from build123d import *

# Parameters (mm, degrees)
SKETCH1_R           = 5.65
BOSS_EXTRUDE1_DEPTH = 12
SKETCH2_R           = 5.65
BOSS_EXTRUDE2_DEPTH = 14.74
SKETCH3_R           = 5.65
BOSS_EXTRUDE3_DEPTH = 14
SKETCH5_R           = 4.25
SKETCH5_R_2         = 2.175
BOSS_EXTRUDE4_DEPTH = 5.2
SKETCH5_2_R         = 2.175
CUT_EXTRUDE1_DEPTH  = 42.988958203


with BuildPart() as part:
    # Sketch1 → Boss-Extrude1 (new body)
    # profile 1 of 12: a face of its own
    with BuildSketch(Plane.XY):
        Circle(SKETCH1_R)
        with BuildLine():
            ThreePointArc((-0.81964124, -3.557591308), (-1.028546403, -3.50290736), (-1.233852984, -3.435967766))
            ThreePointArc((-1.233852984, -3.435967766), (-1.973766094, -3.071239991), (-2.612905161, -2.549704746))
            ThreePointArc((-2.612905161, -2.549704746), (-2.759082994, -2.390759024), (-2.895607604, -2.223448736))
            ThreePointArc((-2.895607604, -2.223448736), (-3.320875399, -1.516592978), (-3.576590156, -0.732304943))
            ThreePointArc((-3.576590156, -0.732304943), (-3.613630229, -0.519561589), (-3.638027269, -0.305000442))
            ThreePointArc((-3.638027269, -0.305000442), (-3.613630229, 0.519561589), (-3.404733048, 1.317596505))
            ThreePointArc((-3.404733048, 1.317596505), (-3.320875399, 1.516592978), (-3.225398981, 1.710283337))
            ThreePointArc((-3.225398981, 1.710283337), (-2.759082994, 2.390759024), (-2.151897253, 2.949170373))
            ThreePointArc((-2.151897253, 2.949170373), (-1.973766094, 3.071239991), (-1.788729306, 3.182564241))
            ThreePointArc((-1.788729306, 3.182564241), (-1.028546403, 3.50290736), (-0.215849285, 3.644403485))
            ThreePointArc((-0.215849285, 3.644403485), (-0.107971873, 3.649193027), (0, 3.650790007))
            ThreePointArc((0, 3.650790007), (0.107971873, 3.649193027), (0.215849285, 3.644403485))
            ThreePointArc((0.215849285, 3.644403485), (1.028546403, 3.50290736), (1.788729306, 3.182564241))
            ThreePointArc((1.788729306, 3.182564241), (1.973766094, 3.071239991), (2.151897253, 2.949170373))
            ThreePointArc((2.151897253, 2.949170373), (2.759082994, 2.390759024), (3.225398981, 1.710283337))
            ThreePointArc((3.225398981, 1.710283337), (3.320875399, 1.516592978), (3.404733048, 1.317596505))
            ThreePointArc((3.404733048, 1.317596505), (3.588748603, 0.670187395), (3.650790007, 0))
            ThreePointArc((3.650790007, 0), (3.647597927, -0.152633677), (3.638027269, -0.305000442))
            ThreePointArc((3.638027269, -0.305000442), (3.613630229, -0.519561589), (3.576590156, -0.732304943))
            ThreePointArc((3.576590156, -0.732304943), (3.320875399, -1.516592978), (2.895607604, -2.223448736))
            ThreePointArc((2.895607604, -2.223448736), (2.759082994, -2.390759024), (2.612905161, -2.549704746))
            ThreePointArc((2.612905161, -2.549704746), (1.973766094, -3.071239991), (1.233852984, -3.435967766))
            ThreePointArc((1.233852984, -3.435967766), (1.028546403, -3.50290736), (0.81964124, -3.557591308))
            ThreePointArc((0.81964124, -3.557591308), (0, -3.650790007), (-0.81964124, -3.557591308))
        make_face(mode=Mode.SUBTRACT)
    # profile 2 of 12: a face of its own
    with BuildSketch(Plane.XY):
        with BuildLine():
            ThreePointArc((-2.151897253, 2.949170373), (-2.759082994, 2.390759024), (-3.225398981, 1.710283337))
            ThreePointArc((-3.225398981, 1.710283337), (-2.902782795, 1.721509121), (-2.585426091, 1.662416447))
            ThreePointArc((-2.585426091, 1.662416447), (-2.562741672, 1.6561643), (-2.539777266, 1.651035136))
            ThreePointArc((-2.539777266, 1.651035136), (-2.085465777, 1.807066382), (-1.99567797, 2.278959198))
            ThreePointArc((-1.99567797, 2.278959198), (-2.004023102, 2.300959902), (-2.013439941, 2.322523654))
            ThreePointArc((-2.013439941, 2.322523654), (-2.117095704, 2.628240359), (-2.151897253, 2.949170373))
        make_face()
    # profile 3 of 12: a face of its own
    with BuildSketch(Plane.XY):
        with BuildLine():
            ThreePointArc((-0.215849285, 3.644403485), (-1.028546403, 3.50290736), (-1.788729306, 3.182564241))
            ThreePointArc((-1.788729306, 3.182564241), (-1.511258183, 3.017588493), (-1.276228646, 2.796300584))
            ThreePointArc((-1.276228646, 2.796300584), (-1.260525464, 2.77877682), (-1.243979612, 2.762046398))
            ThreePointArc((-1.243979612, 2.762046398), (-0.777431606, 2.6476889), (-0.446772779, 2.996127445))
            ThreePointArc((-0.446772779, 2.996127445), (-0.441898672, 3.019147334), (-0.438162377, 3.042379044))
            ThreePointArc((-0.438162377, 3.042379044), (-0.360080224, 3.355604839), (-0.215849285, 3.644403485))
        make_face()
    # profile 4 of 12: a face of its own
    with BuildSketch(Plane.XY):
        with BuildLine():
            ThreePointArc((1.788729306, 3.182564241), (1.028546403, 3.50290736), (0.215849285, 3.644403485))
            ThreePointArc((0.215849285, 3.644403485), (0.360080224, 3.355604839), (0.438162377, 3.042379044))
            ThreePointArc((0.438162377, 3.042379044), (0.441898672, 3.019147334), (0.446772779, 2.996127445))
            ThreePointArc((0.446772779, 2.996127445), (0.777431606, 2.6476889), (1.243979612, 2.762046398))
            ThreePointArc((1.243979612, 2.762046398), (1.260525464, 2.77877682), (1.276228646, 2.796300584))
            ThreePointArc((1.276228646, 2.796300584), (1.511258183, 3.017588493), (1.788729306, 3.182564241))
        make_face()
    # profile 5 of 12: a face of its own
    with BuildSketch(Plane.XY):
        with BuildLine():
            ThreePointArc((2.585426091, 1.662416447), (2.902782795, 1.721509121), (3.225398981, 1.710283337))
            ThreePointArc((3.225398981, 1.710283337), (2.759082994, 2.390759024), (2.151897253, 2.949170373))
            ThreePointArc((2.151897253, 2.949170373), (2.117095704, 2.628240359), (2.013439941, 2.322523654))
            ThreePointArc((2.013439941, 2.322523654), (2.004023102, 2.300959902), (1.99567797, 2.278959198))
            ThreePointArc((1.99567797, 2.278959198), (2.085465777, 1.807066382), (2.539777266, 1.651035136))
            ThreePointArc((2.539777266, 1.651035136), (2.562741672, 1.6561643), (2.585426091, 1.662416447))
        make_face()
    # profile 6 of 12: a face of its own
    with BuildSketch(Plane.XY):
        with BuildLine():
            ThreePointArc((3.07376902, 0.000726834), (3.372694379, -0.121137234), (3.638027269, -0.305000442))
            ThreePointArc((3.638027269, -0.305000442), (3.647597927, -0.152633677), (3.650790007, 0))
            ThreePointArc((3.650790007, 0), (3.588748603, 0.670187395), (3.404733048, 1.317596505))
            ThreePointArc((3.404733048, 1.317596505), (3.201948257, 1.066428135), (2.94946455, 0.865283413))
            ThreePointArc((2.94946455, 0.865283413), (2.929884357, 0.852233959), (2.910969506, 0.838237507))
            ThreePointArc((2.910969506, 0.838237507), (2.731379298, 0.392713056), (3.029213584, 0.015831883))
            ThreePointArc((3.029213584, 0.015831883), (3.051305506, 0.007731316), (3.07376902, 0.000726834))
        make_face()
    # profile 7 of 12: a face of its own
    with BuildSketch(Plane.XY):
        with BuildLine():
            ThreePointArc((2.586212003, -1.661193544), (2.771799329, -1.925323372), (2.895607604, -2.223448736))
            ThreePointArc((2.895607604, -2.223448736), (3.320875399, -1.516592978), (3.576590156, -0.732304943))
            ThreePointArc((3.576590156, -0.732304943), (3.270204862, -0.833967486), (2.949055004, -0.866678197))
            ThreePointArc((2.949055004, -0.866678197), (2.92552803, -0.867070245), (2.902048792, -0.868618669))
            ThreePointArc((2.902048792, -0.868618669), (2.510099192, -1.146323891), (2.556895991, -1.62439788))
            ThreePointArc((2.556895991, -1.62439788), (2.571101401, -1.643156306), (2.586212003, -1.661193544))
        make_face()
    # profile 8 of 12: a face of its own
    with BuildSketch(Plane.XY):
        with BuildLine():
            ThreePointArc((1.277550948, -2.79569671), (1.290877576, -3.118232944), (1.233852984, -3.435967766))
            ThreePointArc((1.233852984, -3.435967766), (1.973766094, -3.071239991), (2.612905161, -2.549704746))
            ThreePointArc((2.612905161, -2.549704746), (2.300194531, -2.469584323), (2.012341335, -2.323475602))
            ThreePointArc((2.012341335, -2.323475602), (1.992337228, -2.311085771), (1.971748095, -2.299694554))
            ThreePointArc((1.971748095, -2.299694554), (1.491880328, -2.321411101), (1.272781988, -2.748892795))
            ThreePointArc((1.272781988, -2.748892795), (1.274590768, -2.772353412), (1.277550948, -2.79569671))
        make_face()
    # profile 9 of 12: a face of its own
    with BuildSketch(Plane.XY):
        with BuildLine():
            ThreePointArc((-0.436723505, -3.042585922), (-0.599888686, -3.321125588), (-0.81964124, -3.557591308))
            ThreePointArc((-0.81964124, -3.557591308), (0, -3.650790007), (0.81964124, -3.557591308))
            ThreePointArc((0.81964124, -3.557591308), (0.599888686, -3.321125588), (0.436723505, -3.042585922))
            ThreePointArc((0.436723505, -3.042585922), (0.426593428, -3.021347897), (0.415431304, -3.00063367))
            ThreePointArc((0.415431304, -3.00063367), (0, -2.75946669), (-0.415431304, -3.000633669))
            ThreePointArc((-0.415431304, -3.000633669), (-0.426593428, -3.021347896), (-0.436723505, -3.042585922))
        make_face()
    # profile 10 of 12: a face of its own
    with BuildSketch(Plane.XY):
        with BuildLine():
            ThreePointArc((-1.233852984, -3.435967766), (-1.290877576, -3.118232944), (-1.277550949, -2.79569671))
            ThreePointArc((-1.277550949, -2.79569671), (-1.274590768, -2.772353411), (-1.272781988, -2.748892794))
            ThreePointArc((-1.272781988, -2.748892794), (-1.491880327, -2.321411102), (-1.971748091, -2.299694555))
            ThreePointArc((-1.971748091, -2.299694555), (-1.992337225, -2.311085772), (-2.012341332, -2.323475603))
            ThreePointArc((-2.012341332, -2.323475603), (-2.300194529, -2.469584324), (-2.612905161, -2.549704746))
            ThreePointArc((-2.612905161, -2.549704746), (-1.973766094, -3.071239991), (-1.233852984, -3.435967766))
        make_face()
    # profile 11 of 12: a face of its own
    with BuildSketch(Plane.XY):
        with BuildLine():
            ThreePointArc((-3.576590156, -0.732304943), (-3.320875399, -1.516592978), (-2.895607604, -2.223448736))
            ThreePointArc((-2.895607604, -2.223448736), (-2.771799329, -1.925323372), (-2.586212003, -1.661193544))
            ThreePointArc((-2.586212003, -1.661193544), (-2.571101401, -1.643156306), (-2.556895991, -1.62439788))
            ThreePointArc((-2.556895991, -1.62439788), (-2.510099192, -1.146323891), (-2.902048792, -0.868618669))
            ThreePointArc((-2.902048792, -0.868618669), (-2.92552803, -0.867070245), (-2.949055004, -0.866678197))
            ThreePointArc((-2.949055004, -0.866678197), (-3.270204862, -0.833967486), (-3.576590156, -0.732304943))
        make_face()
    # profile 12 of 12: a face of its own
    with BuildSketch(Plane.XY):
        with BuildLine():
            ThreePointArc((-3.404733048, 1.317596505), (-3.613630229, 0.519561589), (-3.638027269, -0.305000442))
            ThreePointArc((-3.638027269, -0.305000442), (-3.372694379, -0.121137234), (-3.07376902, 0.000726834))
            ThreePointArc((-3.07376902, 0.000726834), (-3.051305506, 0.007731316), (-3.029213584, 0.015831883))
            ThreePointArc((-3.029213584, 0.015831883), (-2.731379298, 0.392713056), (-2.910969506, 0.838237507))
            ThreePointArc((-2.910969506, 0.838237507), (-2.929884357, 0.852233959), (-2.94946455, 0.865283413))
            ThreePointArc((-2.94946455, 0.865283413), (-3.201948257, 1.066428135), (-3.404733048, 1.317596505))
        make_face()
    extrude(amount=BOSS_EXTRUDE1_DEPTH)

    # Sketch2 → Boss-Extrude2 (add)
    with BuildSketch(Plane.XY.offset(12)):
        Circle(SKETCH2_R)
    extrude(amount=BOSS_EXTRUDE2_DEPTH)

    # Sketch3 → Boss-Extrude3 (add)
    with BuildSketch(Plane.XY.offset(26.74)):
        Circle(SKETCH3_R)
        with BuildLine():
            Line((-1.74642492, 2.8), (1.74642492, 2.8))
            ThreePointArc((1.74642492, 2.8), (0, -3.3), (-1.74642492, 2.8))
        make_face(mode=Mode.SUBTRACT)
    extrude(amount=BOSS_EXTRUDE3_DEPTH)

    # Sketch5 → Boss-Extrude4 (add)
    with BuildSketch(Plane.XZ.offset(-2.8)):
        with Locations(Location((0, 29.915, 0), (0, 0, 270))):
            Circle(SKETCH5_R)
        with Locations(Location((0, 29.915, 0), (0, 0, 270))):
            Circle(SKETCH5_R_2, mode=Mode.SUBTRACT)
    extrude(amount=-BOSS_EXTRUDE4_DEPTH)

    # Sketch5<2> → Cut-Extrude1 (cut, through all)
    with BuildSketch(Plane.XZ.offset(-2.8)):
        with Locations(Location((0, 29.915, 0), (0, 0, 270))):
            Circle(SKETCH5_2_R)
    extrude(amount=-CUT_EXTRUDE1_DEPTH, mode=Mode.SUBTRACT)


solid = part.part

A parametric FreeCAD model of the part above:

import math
import FreeCAD as App
import Part
import Sketcher
from FreeCAD import Vector

doc = App.newDocument("Part")
body = doc.addObject("PartDesign::Body", "Body")

sketch1 = body.newObject("Sketcher::SketchObject", "Sketch")
sketch1.AttachmentSupport = (doc.getObject("XY_Plane"), [""])
sketch1.MapMode = "FlatFace"
sketch1.addGeometry(Part.Circle(Vector(0, 0, 0), Vector(0, 0, 1), 5.65), False)
sketch1.addGeometry(Part.ArcOfCircle(Part.Circle(Vector(0, 0, 0), Vector(0, 0, 1), 3.651), math.radians(-77.03), math.radians(-70.25)), False)
sketch1.addGeometry(Part.ArcOfCircle(Part.Circle(Vector(1.786, -2.439, 0), Vector(0, 0, 1), 1.478), math.radians(-156), math.radians(-131)), False)
sketch1.addGeometry(Part.ArcOfCircle(Part.Circle(Vector(0, -3.238, 0), Vector(0, 0, 1), 0.478), math.radians(24.09), math.radians(29.73)), False)
sketch1.addGeometry(Part.ArcOfCircle(Part.Circle(Vector(0, -3.238, 0), Vector(0, 0, 1), 0.478), math.radians(30), math.radians(150)), False)
sketch1.addGeometry(Part.ArcOfCircle(Part.Circle(Vector(0, -3.238, 0), Vector(0, 0, 1), 0.478), math.radians(150.27), math.radians(155.91)), False)
sketch1.addGeometry(Part.ArcOfCircle(Part.Circle(Vector(-1.786, -2.439, 0), Vector(0, 0, 1), 1.478), math.radians(-49), math.radians(-24)), False)
sketch1.addGeometry(Part.ArcOfCircle(Part.Circle(Vector(0, 0, 0), Vector(0, 0, 1), 3.651), math.radians(-109.75), math.radians(-102.97)), False)
sketch1.addGeometry(Part.ArcOfCircle(Part.Circle(Vector(0.183, -3.018, 0), Vector(0, 0, 1), 1.478), math.radians(171), math.radians(196)), False)
sketch1.addGeometry(Part.ArcOfCircle(Part.Circle(Vector(-1.751, -2.724, 0), Vector(0, 0, 1), 0.478), math.radians(-8.64), math.radians(-3)), False)
sketch1.addGeometry(Part.ArcOfCircle(Part.Circle(Vector(-1.751, -2.724, 0), Vector(0, 0, 1), 0.478), math.radians(-3), math.radians(118)), False)
sketch1.addGeometry(Part.ArcOfCircle(Part.Circle(Vector(-1.751, -2.724, 0), Vector(0, 0, 1), 0.478), math.radians(117.54), math.radians(123.18)), False)
sketch1.addGeometry(Part.ArcOfCircle(Part.Circle(Vector(-2.821, -1.087, 0), Vector(0, 0, 1), 1.478), math.radians(-82), math.radians(-57)), False)
sketch1.addGeometry(Part.ArcOfCircle(Part.Circle(Vector(0, 0, 0), Vector(0, 0, 1), 3.651), math.radians(-142.48), math.radians(-135.7)), False)
sketch1.addGeometry(Part.ArcOfCircle(Part.Circle(Vector(-1.477, -2.638, 0), Vector(0, 0, 1), 1.478), math.radians(139), math.radians(164)), False)
sketch1.addGeometry(Part.ArcOfCircle(Part.Circle(Vector(-2.945, -1.345, 0), Vector(0, 0, 1), 0.478), math.radians(-41.36), math.radians(-35.73)), False)
sketch1.addGeometry(Part.ArcOfCircle(Part.Circle(Vector(-2.945, -1.345, 0), Vector(0, 0, 1), 0.478), math.radians(-36), math.radians(85)), False)
sketch1.addGeometry(Part.ArcOfCircle(Part.Circle(Vector(-2.945, -1.345, 0), Vector(0, 0, 1), 0.478), math.radians(84.82), math.radians(90.45)), False)
sketch1.addGeometry(Part.ArcOfCircle(Part.Circle(Vector(-2.961, 0.611, 0), Vector(0, 0, 1), 1.478), math.radians(-115), math.radians(-90)), False)
sketch1.addGeometry(Part.ArcOfCircle(Part.Circle(Vector(0, 0, 0), Vector(0, 0, 1), 3.651), math.radians(-175.21), math.radians(-168.43)), False)
sketch1.addGeometry(Part.ArcOfCircle(Part.Circle(Vector(-2.669, -1.42, 0), Vector(0, 0, 1), 1.478), math.radians(106), math.radians(131)), False)
sketch1.addGeometry(Part.ArcOfCircle(Part.Circle(Vector(-3.205, 0.461, 0), Vector(0, 0, 1), 0.478), math.radians(-74.09), math.radians(-68.45)), False)
sketch1.addGeometry(Part.ArcOfCircle(Part.Circle(Vector(-3.205, 0.461, 0), Vector(0, 0, 1), 0.478), math.radians(-68), math.radians(52)), False)
sketch1.addGeometry(Part.ArcOfCircle(Part.Circle(Vector(-3.205, 0.461, 0), Vector(0, 0, 1), 0.478), math.radians(52.09), math.radians(57.73)), False)
sketch1.addGeometry(Part.ArcOfCircle(Part.Circle(Vector(-2.16, 2.115, 0), Vector(0, 0, 1), 1.478), math.radians(-147), math.radians(-122)), False)
sketch1.addGeometry(Part.ArcOfCircle(Part.Circle(Vector(0, 0, 0), Vector(0, 0, 1), 3.651), math.radians(152.07), math.radians(158.84)), False)
sketch1.addGeometry(Part.ArcOfCircle(Part.Circle(Vector(-3.013, 0.248, 0), Vector(0, 0, 1), 1.478), math.radians(73), math.radians(98)), False)
sketch1.addGeometry(Part.ArcOfCircle(Part.Circle(Vector(-2.447, 2.12, 0), Vector(0, 0, 1), 0.478), math.radians(-106.82), math.radians(-101.18)), False)
sketch1.addGeometry(Part.ArcOfCircle(Part.Circle(Vector(-2.447, 2.12, 0), Vector(0, 0, 1), 0.478), math.radians(-101), math.radians(19)), False)
sketch1.addGeometry(Part.ArcOfCircle(Part.Circle(Vector(-2.447, 2.12, 0), Vector(0, 0, 1), 0.478), math.radians(19.36), math.radians(25)), False)
sketch1.addGeometry(Part.ArcOfCircle(Part.Circle(Vector(-0.674, 2.947, 0), Vector(0, 0, 1), 1.478), math.radians(180), math.radians(205)), False)
sketch1.addGeometry(Part.ArcOfCircle(Part.Circle(Vector(0, 0, 0), Vector(0, 0, 1), 3.651), math.radians(119.34), math.radians(126.12)), False)
sketch1.addGeometry(Part.ArcOfCircle(Part.Circle(Vector(-2.401, 1.837, 0), Vector(0, 0, 1), 1.478), math.radians(40), math.radians(66)), False)
sketch1.addGeometry(Part.ArcOfCircle(Part.Circle(Vector(-0.912, 3.107, 0), Vector(0, 0, 1), 0.478), math.radians(-139.55), math.radians(-133.91)), False)
sketch1.addGeometry(Part.ArcOfCircle(Part.Circle(Vector(-0.912, 3.107, 0), Vector(0, 0, 1), 0.478), math.radians(-134), math.radians(-13)), False)
sketch1.addGeometry(Part.ArcOfCircle(Part.Circle(Vector(-0.912, 3.107, 0), Vector(0, 0, 1), 0.478), math.radians(-13.36), math.radians(-7.73)), False)
sketch1.addGeometry(Part.ArcOfCircle(Part.Circle(Vector(1.026, 2.844, 0), Vector(0, 0, 1), 1.478), math.radians(147), math.radians(172)), False)
sketch1.addGeometry(Part.ArcOfCircle(Part.Circle(Vector(0, 0, 0), Vector(0, 0, 1), 3.651), math.radians(90), math.radians(93.39)), False)
sketch1.addGeometry(Part.ArcOfCircle(Part.Circle(Vector(0, 0, 0), Vector(0, 0, 1), 3.651), math.radians(86.61), math.radians(90)), False)
sketch1.addGeometry(Part.ArcOfCircle(Part.Circle(Vector(-1.026, 2.844, 0), Vector(0, 0, 1), 1.478), math.radians(8), math.radians(33)), False)
sketch1.addGeometry(Part.ArcOfCircle(Part.Circle(Vector(0.912, 3.107, 0), Vector(0, 0, 1), 0.478), math.radians(-172.27), math.radians(-166.64)), False)
sketch1.addGeometry(Part.ArcOfCircle(Part.Circle(Vector(0.912, 3.107, 0), Vector(0, 0, 1), 0.478), math.radians(-167), math.radians(-46)), False)
sketch1.addGeometry(Part.ArcOfCircle(Part.Circle(Vector(0.912, 3.107, 0), Vector(0, 0, 1), 0.478), math.radians(-46.09), math.radians(-40.45)), False)
sketch1.addGeometry(Part.ArcOfCircle(Part.Circle(Vector(2.401, 1.837, 0), Vector(0, 0, 1), 1.478), math.radians(114), math.radians(140)), False)
sketch1.addGeometry(Part.ArcOfCircle(Part.Circle(Vector(0, 0, 0), Vector(0, 0, 1), 3.651), math.radians(53.88), math.radians(60.66)), False)
sketch1.addGeometry(Part.ArcOfCircle(Part.Circle(Vector(0.674, 2.947, 0), Vector(0, 0, 1), 1.478), math.radians(-25), math.radians(0)), False)
sketch1.addGeometry(Part.ArcOfCircle(Part.Circle(Vector(2.447, 2.12, 0), Vector(0, 0, 1), 0.478), math.radians(155), math.radians(160.64)), False)
sketch1.addGeometry(Part.ArcOfCircle(Part.Circle(Vector(2.447, 2.12, 0), Vector(0, 0, 1), 0.478), math.radians(161), math.radians(281)), False)
sketch1.addGeometry(Part.ArcOfCircle(Part.Circle(Vector(2.447, 2.12, 0), Vector(0, 0, 1), 0.478), math.radians(-78.82), math.radians(-73.18)), False)
sketch1.addGeometry(Part.ArcOfCircle(Part.Circle(Vector(3.013, 0.248, 0), Vector(0, 0, 1), 1.478), math.radians(82), math.radians(107)), False)
sketch1.addGeometry(Part.ArcOfCircle(Part.Circle(Vector(0, 0, 0), Vector(0, 0, 1), 3.651), math.radians(21.16), math.radians(27.93)), False)
sketch1.addGeometry(Part.ArcOfCircle(Part.Circle(Vector(2.16, 2.115, 0), Vector(0, 0, 1), 1.478), math.radians(-58), math.radians(-33)), False)
sketch1.addGeometry(Part.ArcOfCircle(Part.Circle(Vector(3.205, 0.461, 0), Vector(0, 0, 1), 0.478), math.radians(122.27), math.radians(127.91)), False)
sketch1.addGeometry(Part.ArcOfCircle(Part.Circle(Vector(3.205, 0.461, 0), Vector(0, 0, 1), 0.478), math.radians(128), math.radians(248)), False)
sketch1.addGeometry(Part.ArcOfCircle(Part.Circle(Vector(3.205, 0.461, 0), Vector(0, 0, 1), 0.478), math.radians(-111.55), math.radians(-105.91)), False)
sketch1.addGeometry(Part.ArcOfCircle(Part.Circle(Vector(2.669, -1.42, 0), Vector(0, 0, 1), 1.478), math.radians(49), math.radians(74)), False)
sketch1.addGeometry(Part.ArcOfCircle(Part.Circle(Vector(0, 0, 0), Vector(0, 0, 1), 3.651), math.radians(-11.57), math.radians(-4.79)), False)
sketch1.addGeometry(Part.ArcOfCircle(Part.Circle(Vector(2.961, 0.611, 0), Vector(0, 0, 1), 1.478), math.radians(-90), math.radians(-65)), False)
sketch1.addGeometry(Part.ArcOfCircle(Part.Circle(Vector(2.945, -1.345, 0), Vector(0, 0, 1), 0.478), math.radians(89.55), math.radians(95.18)), False)
sketch1.addGeometry(Part.ArcOfCircle(Part.Circle(Vector(2.945, -1.345, 0), Vector(0, 0, 1), 0.478), math.radians(95), math.radians(216)), False)
sketch1.addGeometry(Part.ArcOfCircle(Part.Circle(Vector(2.945, -1.345, 0), Vector(0, 0, 1), 0.478), math.radians(-144.27), math.radians(-138.64)), False)
sketch1.addGeometry(Part.ArcOfCircle(Part.Circle(Vector(1.477, -2.638, 0), Vector(0, 0, 1), 1.478), math.radians(16), math.radians(41)), False)
sketch1.addGeometry(Part.ArcOfCircle(Part.Circle(Vector(0, 0, 0), Vector(0, 0, 1), 3.651), math.radians(-44.3), math.radians(-37.52)), False)
sketch1.addGeometry(Part.ArcOfCircle(Part.Circle(Vector(2.821, -1.087, 0), Vector(0, 0, 1), 1.478), math.radians(-123), math.radians(-98)), False)
sketch1.addGeometry(Part.ArcOfCircle(Part.Circle(Vector(1.751, -2.724, 0), Vector(0, 0, 1), 0.478), math.radians(56.82), math.radians(62.46)), False)
sketch1.addGeometry(Part.ArcOfCircle(Part.Circle(Vector(1.751, -2.724, 0), Vector(0, 0, 1), 0.478), math.radians(62), math.radians(183)), False)
sketch1.addGeometry(Part.ArcOfCircle(Part.Circle(Vector(1.751, -2.724, 0), Vector(0, 0, 1), 0.478), math.radians(-177), math.radians(-171.36)), False)
sketch1.addGeometry(Part.ArcOfCircle(Part.Circle(Vector(-0.183, -3.018, 0), Vector(0, 0, 1), 1.478), math.radians(-16), math.radians(9)), False)
sketch1.addConstraint(Sketcher.Constraint("Coincident", 1, 1, 2, 2))
sketch1.addConstraint(Sketcher.Constraint("Tangent", 2, 1, 3, 1))
sketch1.addConstraint(Sketcher.Constraint("Tangent", 3, 2, 4, 1))
sketch1.addConstraint(Sketcher.Constraint("Tangent", 4, 2, 5, 1))
sketch1.addConstraint(Sketcher.Constraint("Tangent", 5, 2, 6, 2))
sketch1.addConstraint(Sketcher.Constraint("Coincident", 6, 1, 7, 2))
sketch1.addConstraint(Sketcher.Constraint("Coincident", 7, 1, 8, 2))
sketch1.addConstraint(Sketcher.Constraint("Tangent", 8, 1, 9, 1))
sketch1.addConstraint(Sketcher.Constraint("Tangent", 9, 2, 10, 1))
sketch1.addConstraint(Sketcher.Constraint("Tangent", 10, 2, 11, 1))
sketch1.addConstraint(Sketcher.Constraint("Tangent", 11, 2, 12, 2))
sketch1.addConstraint(Sketcher.Constraint("Coincident", 12, 1, 13, 2))
sketch1.addConstraint(Sketcher.Constraint("Coincident", 13, 1, 14, 2))
sketch1.addConstraint(Sketcher.Constraint("Tangent", 14, 1, 15, 1))
sketch1.addConstraint(Sketcher.Constraint("Tangent", 15, 2, 16, 1))
sketch1.addConstraint(Sketcher.Constraint("Tangent", 16, 2, 17, 1))
sketch1.addConstraint(Sketcher.Constraint("Tangent", 17, 2, 18, 2))
sketch1.addConstraint(Sketcher.Constraint("Coincident", 18, 1, 19, 2))
sketch1.addConstraint(Sketcher.Constraint("Coincident", 19, 1, 20, 2))
sketch1.addConstraint(Sketcher.Constraint("Tangent", 20, 1, 21, 1))
sketch1.addConstraint(Sketcher.Constraint("Tangent", 21, 2, 22, 1))
sketch1.addConstraint(Sketcher.Constraint("Tangent", 22, 2, 23, 1))
sketch1.addConstraint(Sketcher.Constraint("Tangent", 23, 2, 24, 2))
sketch1.addConstraint(Sketcher.Constraint("Coincident", 24, 1, 25, 2))
sketch1.addConstraint(Sketcher.Constraint("Coincident", 25, 1, 26, 2))
sketch1.addConstraint(Sketcher.Constraint("Tangent", 26, 1, 27, 1))
sketch1.addConstraint(Sketcher.Constraint("Tangent", 27, 2, 28, 1))
sketch1.addConstraint(Sketcher.Constraint("Tangent", 28, 2, 29, 1))
sketch1.addConstraint(Sketcher.Constraint("Tangent", 29, 2, 30, 2))
sketch1.addConstraint(Sketcher.Constraint("Coincident", 30, 1, 31, 2))
sketch1.addConstraint(Sketcher.Constraint("Coincident", 31, 1, 32, 2))
sketch1.addConstraint(Sketcher.Constraint("Tangent", 32, 1, 33, 1))
sketch1.addConstraint(Sketcher.Constraint("Tangent", 33, 2, 34, 1))
sketch1.addConstraint(Sketcher.Constraint("Tangent", 34, 2, 35, 1))
sketch1.addConstraint(Sketcher.Constraint("Tangent", 35, 2, 36, 2))
sketch1.addConstraint(Sketcher.Constraint("Coincident", 36, 1, 37, 2))
sketch1.addConstraint(Sketcher.Constraint("Tangent", 37, 1, 38, 2))
sketch1.addConstraint(Sketcher.Constraint("Coincident", 38, 1, 39, 2))
sketch1.addConstraint(Sketcher.Constraint("Tangent", 39, 1, 40, 1))
sketch1.addConstraint(Sketcher.Constraint("Tangent", 40, 2, 41, 1))
sketch1.addConstraint(Sketcher.Constraint("Tangent", 41, 2, 42, 1))
sketch1.addConstraint(Sketcher.Constraint("Tangent", 42, 2, 43, 2))
sketch1.addConstraint(Sketcher.Constraint("Coincident", 43, 1, 44, 2))
sketch1.addConstraint(Sketcher.Constraint("Coincident", 44, 1, 45, 2))
sketch1.addConstraint(Sketcher.Constraint("Tangent", 45, 1, 46, 1))
sketch1.addConstraint(Sketcher.Constraint("Tangent", 46, 2, 47, 1))
sketch1.addConstraint(Sketcher.Constraint("Tangent", 47, 2, 48, 1))
sketch1.addConstraint(Sketcher.Constraint("Tangent", 48, 2, 49, 2))
sketch1.addConstraint(Sketcher.Constraint("Coincident", 49, 1, 50, 2))
sketch1.addConstraint(Sketcher.Constraint("Coincident", 50, 1, 51, 2))
sketch1.addConstraint(Sketcher.Constraint("Tangent", 51, 1, 52, 1))
sketch1.addConstraint(Sketcher.Constraint("Tangent", 52, 2, 53, 1))
sketch1.addConstraint(Sketcher.Constraint("Tangent", 53, 2, 54, 1))
sketch1.addConstraint(Sketcher.Constraint("Tangent", 54, 2, 55, 2))
sketch1.addConstraint(Sketcher.Constraint("Coincident", 55, 1, 56, 2))
sketch1.addConstraint(Sketcher.Constraint("Coincident", 56, 1, 57, 2))
sketch1.addConstraint(Sketcher.Constraint("Tangent", 57, 1, 58, 1))
sketch1.addConstraint(Sketcher.Constraint("Tangent", 58, 2, 59, 1))
sketch1.addConstraint(Sketcher.Constraint("Tangent", 59, 2, 60, 1))
sketch1.addConstraint(Sketcher.Constraint("Tangent", 60, 2, 61, 2))
sketch1.addConstraint(Sketcher.Constraint("Coincident", 61, 1, 62, 2))
sketch1.addConstraint(Sketcher.Constraint("Coincident", 62, 1, 63, 2))
sketch1.addConstraint(Sketcher.Constraint("Tangent", 63, 1, 64, 1))
sketch1.addConstraint(Sketcher.Constraint("Tangent", 64, 2, 65, 1))
sketch1.addConstraint(Sketcher.Constraint("Tangent", 65, 2, 66, 1))
sketch1.addConstraint(Sketcher.Constraint("Tangent", 66, 2, 67, 2))
sketch1.addConstraint(Sketcher.Constraint("Coincident", 67, 1, 1, 2))
sketch1.addConstraint(Sketcher.Constraint("Coincident", 0, 3, -1, 1))
sketch1.addConstraint(Sketcher.Constraint("Coincident", 1, 3, -1, 1))
sketch1.addConstraint(Sketcher.Constraint("Coincident", 7, 3, -1, 1))
sketch1.addConstraint(Sketcher.Constraint("Coincident", 13, 3, -1, 1))
sketch1.addConstraint(Sketcher.Constraint("Coincident", 19, 3, -1, 1))
sketch1.addConstraint(Sketcher.Constraint("Coincident", 25, 3, -1, 1))
sketch1.addConstraint(Sketcher.Constraint("Coincident", 31, 3, -1, 1))
sketch1.addConstraint(Sketcher.Constraint("Coincident", 37, 3, -1, 1))
sketch1.addConstraint(Sketcher.Constraint("Coincident", 44, 3, -1, 1))
sketch1.addConstraint(Sketcher.Constraint("Coincident", 50, 3, -1, 1))
sketch1.addConstraint(Sketcher.Constraint("Coincident", 56, 3, -1, 1))
sketch1.addConstraint(Sketcher.Constraint("Coincident", 62, 3, -1, 1))
sketch1.addConstraint(Sketcher.Constraint("Coincident", 5, 3, 3, 3))
sketch1.addConstraint(Sketcher.Constraint("Coincident", 11, 3, 9, 3))
sketch1.addConstraint(Sketcher.Constraint("Coincident", 17, 3, 15, 3))
sketch1.addConstraint(Sketcher.Constraint("Coincident", 23, 3, 21, 3))
sketch1.addConstraint(Sketcher.Constraint("Coincident", 29, 3, 27, 3))
sketch1.addConstraint(Sketcher.Constraint("Coincident", 35, 3, 33, 3))
sketch1.addConstraint(Sketcher.Constraint("Coincident", 42, 3, 40, 3))
sketch1.addConstraint(Sketcher.Constraint("Coincident", 48, 3, 46, 3))
sketch1.addConstraint(Sketcher.Constraint("Coincident", 54, 3, 52, 3))
sketch1.addConstraint(Sketcher.Constraint("Coincident", 60, 3, 58, 3))
sketch1.addConstraint(Sketcher.Constraint("Coincident", 66, 3, 64, 3))
sketch1.addConstraint(Sketcher.Constraint("Equal", 2, 6))
sketch1.addConstraint(Sketcher.Constraint("Equal", 1, 7))
sketch1.addConstraint(Sketcher.Constraint("Equal", 6, 8))
sketch1.addConstraint(Sketcher.Constraint("Equal", 5, 9))
sketch1.addConstraint(Sketcher.Constraint("Equal", 8, 12))
sketch1.addConstraint(Sketcher.Constraint("Equal", 7, 13))
sketch1.addConstraint(Sketcher.Constraint("Equal", 12, 14))
sketch1.addConstraint(Sketcher.Constraint("Equal", 11, 15))
sketch1.addConstraint(Sketcher.Constraint("Equal", 14, 18))
sketch1.addConstraint(Sketcher.Constraint("Equal", 13, 19))
sketch1.addConstraint(Sketcher.Constraint("Equal", 18, 20))
sketch1.addConstraint(Sketcher.Constraint("Equal", 17, 21))
sketch1.addConstraint(Sketcher.Constraint("Equal", 20, 24))
sketch1.addConstraint(Sketcher.Constraint("Equal", 19, 25))
sketch1.addConstraint(Sketcher.Constraint("Equal", 24, 26))
sketch1.addConstraint(Sketcher.Constraint("Equal", 23, 27))
sketch1.addConstraint(Sketcher.Constraint("Equal", 26, 30))
sketch1.addConstraint(Sketcher.Constraint("Equal", 25, 31))
sketch1.addConstraint(Sketcher.Constraint("Equal", 30, 32))
sketch1.addConstraint(Sketcher.Constraint("Equal", 29, 33))
sketch1.addConstraint(Sketcher.Constraint("Equal", 32, 36))
sketch1.addConstraint(Sketcher.Constraint("Equal", 31, 37))
sketch1.addConstraint(Sketcher.Constraint("Equal", 37, 38))
sketch1.addConstraint(Sketcher.Constraint("Equal", 36, 39))
sketch1.addConstraint(Sketcher.Constraint("Equal", 35, 40))
sketch1.addConstraint(Sketcher.Constraint("Equal", 39, 43))
sketch1.addConstraint(Sketcher.Constraint("Equal", 38, 44))
sketch1.addConstraint(Sketcher.Constraint("Equal", 43, 45))
sketch1.addConstraint(Sketcher.Constraint("Equal", 42, 46))
sketch1.addConstraint(Sketcher.Constraint("Equal", 45, 49))
sketch1.addConstraint(Sketcher.Constraint("Equal", 44, 50))
sketch1.addConstraint(Sketcher.Constraint("Equal", 49, 51))
sketch1.addConstraint(Sketcher.Constraint("Equal", 48, 52))
sketch1.addConstraint(Sketcher.Constraint("Equal", 51, 55))
sketch1.addConstraint(Sketcher.Constraint("Equal", 50, 56))
sketch1.addConstraint(Sketcher.Constraint("Equal", 55, 57))
sketch1.addConstraint(Sketcher.Constraint("Equal", 54, 58))
sketch1.addConstraint(Sketcher.Constraint("Equal", 57, 61))
sketch1.addConstraint(Sketcher.Constraint("Equal", 56, 62))
sketch1.addConstraint(Sketcher.Constraint("Equal", 61, 63))
sketch1.addConstraint(Sketcher.Constraint("Equal", 60, 64))
sketch1.addConstraint(Sketcher.Constraint("Equal", 63, 67))
sketch1.addConstraint(Sketcher.Constraint("Symmetric", 2, 3, 6, 3, -2))
sketch1.addConstraint(Sketcher.Constraint("Symmetric", 36, 3, 39, 3, -2))
sketch1.addConstraint(Sketcher.Constraint("Symmetric", 32, 3, 43, 3, -2))
sketch1.addConstraint(Sketcher.Constraint("Symmetric", 30, 3, 45, 3, -2))
sketch1.addConstraint(Sketcher.Constraint("Symmetric", 26, 3, 49, 3, -2))
sketch1.addConstraint(Sketcher.Constraint("Symmetric", 24, 3, 51, 3, -2))
sketch1.addConstraint(Sketcher.Constraint("Symmetric", 20, 3, 55, 3, -2))
sketch1.addConstraint(Sketcher.Constraint("Symmetric", 18, 3, 57, 3, -2))
sketch1.addConstraint(Sketcher.Constraint("Symmetric", 14, 3, 61, 3, -2))
sketch1.addConstraint(Sketcher.Constraint("Symmetric", 12, 3, 63, 3, -2))
sketch1.addConstraint(Sketcher.Constraint("Symmetric", 8, 3, 67, 3, -2))
sketch1.addConstraint(Sketcher.Constraint("PointOnObject", 37, 1, -2))
sketch1.addConstraint(Sketcher.Constraint("Horizontal", 3, 2, 4, 2))
sketch1.addConstraint(Sketcher.Constraint("Horizontal", 34, 2, 40, 2))
sketch1.addConstraint(Sketcher.Constraint("Horizontal", 33, 2, 41, 2))
sketch1.addConstraint(Sketcher.Constraint("Horizontal", 28, 2, 46, 2))
sketch1.addConstraint(Sketcher.Constraint("Horizontal", 27, 2, 47, 2))
sketch1.addConstraint(Sketcher.Constraint("Horizontal", 22, 2, 52, 2))
sketch1.addConstraint(Sketcher.Constraint("Horizontal", 21, 2, 53, 2))
sketch1.addConstraint(Sketcher.Constraint("Horizontal", 16, 2, 58, 2))
sketch1.addConstraint(Sketcher.Constraint("Horizontal", 15, 2, 59, 2))
sketch1.addConstraint(Sketcher.Constraint("Horizontal", 10, 2, 64, 2))
sketch1.addConstraint(Sketcher.Constraint("Horizontal", 9, 2, 65, 2))
sketch1.addConstraint(Sketcher.Constraint("Diameter", 0, 11.3))
sketch1.addConstraint(Sketcher.Constraint("Radius", 1, 3.65079))
sketch1.addConstraint(Sketcher.Constraint("Radius", 3, 0.478392))
sketch1.addConstraint(Sketcher.Constraint("DistanceY", 19, 1, -1, 1, 0.305))
sketch1.addConstraint(Sketcher.Constraint("Radius", 2, 1.477805))
sketch1.addConstraint(Sketcher.Constraint("DistanceX", 21, 3, -1, 1, 3.204902))
sketch1.addConstraint(Sketcher.Constraint("DistanceX", 25, 1, -1, 1, 3.225399))
sketch1.addConstraint(Sketcher.Constraint("DistanceY", -1, 1, 32, 1, 2.796301))
sketch1.addConstraint(Sketcher.Constraint("DistanceX", -1, 1, 2, 3, 1.78581))
sketch1.addConstraint(Sketcher.Constraint("DistanceY", 3, 3, -1, 1, 3.237859))
sketch1.addConstraint(Sketcher.Constraint("DistanceY", 8, 3, -1, 1, 3.017608))
sketch1.addConstraint(Sketcher.Constraint("DistanceX", 9, 3, -1, 1, 1.750518))
sketch1.addConstraint(Sketcher.Constraint("DistanceY", 9, 3, -1, 1, 2.72386))
sketch1.addConstraint(Sketcher.Constraint("DistanceX", 12, 3, -1, 1, 2.82114))
sketch1.addConstraint(Sketcher.Constraint("DistanceY", 14, 3, -1, 1, 2.63778))
sketch1.addConstraint(Sketcher.Constraint("DistanceX", 15, 3, -1, 1, 2.94526))
sketch1.addConstraint(Sketcher.Constraint("DistanceX", 18, 3, -1, 1, 2.960779))
sketch1.addConstraint(Sketcher.Constraint("DistanceY", -1, 1, 18, 3, 0.61108))
sketch1.addConstraint(Sketcher.Constraint("DistanceX", 24, 3, -1, 1, 2.160391))
sketch1.addConstraint(Sketcher.Constraint("DistanceY", -1, 1, 24, 3, 2.114791))
sketch1.addConstraint(Sketcher.Constraint("DistanceY", -1, 1, 26, 3, 0.247821))
sketch1.addConstraint(Sketcher.Constraint("DistanceX", 27, 3, -1, 1, 2.44701))
sketch1.addConstraint(Sketcher.Constraint("DistanceY", -1, 1, 30, 3, 2.947071))
sketch1.addConstraint(Sketcher.Constraint("DistanceX", 32, 3, -1, 1, 2.400721))
sketch1.addConstraint(Sketcher.Constraint("DistanceX", 33, 3, -1, 1, 0.91221))
sketch1.addConstraint(Sketcher.Constraint("DistanceX", -1, 1, 3, 2, 0.415431))
sketch1.addConstraint(Sketcher.Constraint("DistanceX", 9, 2, -1, 1, 1.272782))
sketch1.addConstraint(Sketcher.Constraint("DistanceX", 10, 2, -1, 1, 1.971748))
sketch1.addConstraint(Sketcher.Constraint("DistanceX", 16, 2, -1, 1, 2.902049))
sketch1.addConstraint(Sketcher.Constraint("DistanceY", -1, 1, 21, 2, 0.015832))
sketch1.addConstraint(Sketcher.Constraint("DistanceX", 22, 2, -1, 1, 2.91097))
sketch1.addConstraint(Sketcher.Constraint("DistanceY", -1, 1, 28, 2, 2.278959))
sketch1.addConstraint(Sketcher.Constraint("DistanceX", 33, 2, -1, 1, 1.24398))
sketch1.addConstraint(Sketcher.Constraint("DistanceY", -1, 1, 35, 2, 3.042379))
sketch1.addConstraint(Sketcher.Constraint("DistanceX", 15, 2, -1, 1, 2.556896))
sketch1.addConstraint(Sketcher.Constraint("DistanceX", 27, 2, -1, 1, 2.539777))
sketch1.addConstraint(Sketcher.Constraint("DistanceX", 34, 2, -1, 1, 0.446773))
pad1 = body.newObject("PartDesign::Pad", "Pad")
pad1.Profile = sketch1
pad1.Length = 12

sketch2 = body.newObject("Sketcher::SketchObject", "Sketch001")
sketch2.AttachmentSupport = (doc.getObject("XY_Plane"), [""])
sketch2.MapMode = "FlatFace"
sketch2.AttachmentOffset = App.Placement(Vector(0, 0, 12), App.Rotation())
sketch2.addGeometry(Part.Circle(Vector(0, 0, 0), Vector(0, 0, 1), 6), False)
sketch2.addConstraint(Sketcher.Constraint("Coincident", 0, 3, -1, 1))
sketch2.addConstraint(Sketcher.Constraint("Diameter", 0, 11.3))
pad2 = body.newObject("PartDesign::Pad", "Pad001")
pad2.Profile = sketch2
pad2.Length = 14.74

sketch3 = body.newObject("Sketcher::SketchObject", "Sketch002")
sketch3.AttachmentSupport = (doc.getObject("XY_Plane"), [""])
sketch3.MapMode = "FlatFace"
sketch3.AttachmentOffset = App.Placement(Vector(0, 0, 26.74), App.Rotation())
sketch3.addGeometry(Part.Circle(Vector(0, 0, 0), Vector(0, 0, 1), 5.7), False)
sketch3.addGeometry(Part.ArcOfCircle(Part.Circle(Vector(0, 0, 0), Vector(0, 0, 1), 3.3), math.radians(122), math.radians(418)), False)
sketch3.addGeometry(Part.LineSegment(Vector(-1.7, 2.8, 0), Vector(1.7, 2.8, 0)), False)
sketch3.addConstraint(Sketcher.Constraint("Coincident", 1, 1, 2, 1))
sketch3.addConstraint(Sketcher.Constraint("Coincident", 2, 2, 1, 2))
sketch3.addConstraint(Sketcher.Constraint("Horizontal", 2))
sketch3.addConstraint(Sketcher.Constraint("Coincident", 0, 3, -1, 1))
sketch3.addConstraint(Sketcher.Constraint("Coincident", 1, 3, -1, 1))
sketch3.addConstraint(Sketcher.Constraint("Diameter", 0, 11.3))
sketch3.addConstraint(Sketcher.Constraint("Radius", 1, 3.3))
sketch3.addConstraint(Sketcher.Constraint("DistanceY", -1, 1, 1, 1, 2.8))
pad3 = body.newObject("PartDesign::Pad", "Pad002")
pad3.Profile = sketch3
pad3.Length = 14

sketch4 = body.newObject("Sketcher::SketchObject", "Sketch003")
sketch4.AttachmentSupport = (doc.getObject("XZ_Plane"), [""])
sketch4.MapMode = "FlatFace"
sketch4.AttachmentOffset = App.Placement(Vector(0, 0, -2.8), App.Rotation())
sketch4.addGeometry(Part.Circle(Vector(0, 29.9, 0), Vector(0, 0, 1), 4.2), False)
sketch4.addGeometry(Part.Circle(Vector(0, 29.9, 0), Vector(0, 0, 1), 2.2), False)
sketch4.addConstraint(Sketcher.Constraint("Coincident", 1, 3, 0, 3))
sketch4.addConstraint(Sketcher.Constraint("PointOnObject", 0, 3, -2))
sketch4.addConstraint(Sketcher.Constraint("Diameter", 0, 8.5))
sketch4.addConstraint(Sketcher.Constraint("Diameter", 1, 4.35))
sketch4.addConstraint(Sketcher.Constraint("DistanceY", -1, 1, 0, 3, 29.915))
pad4 = body.newObject("PartDesign::Pad", "Pad003")
pad4.Profile = sketch4
pad4.Length = 5.2
pad4.Reversed = True

sketch5 = body.newObject("Sketcher::SketchObject", "Sketch004")
sketch5.AttachmentSupport = (doc.getObject("XZ_Plane"), [""])
sketch5.MapMode = "FlatFace"
sketch5.AttachmentOffset = App.Placement(Vector(0, 0, -2.8), App.Rotation())
sketch5.addGeometry(Part.Circle(Vector(0, 29.9, 0), Vector(0, 0, 1), 2.2), False)
sketch5.addConstraint(Sketcher.Constraint("PointOnObject", 0, 3, -2))
sketch5.addConstraint(Sketcher.Constraint("Diameter", 0, 4.35))
sketch5.addConstraint(Sketcher.Constraint("DistanceY", -1, 1, 0, 3, 29.915))
pocket1 = body.newObject("PartDesign::Pocket", "Pocket")
pocket1.Profile = sketch5
pocket1.Type = "ThroughAll"

doc.recompute()
